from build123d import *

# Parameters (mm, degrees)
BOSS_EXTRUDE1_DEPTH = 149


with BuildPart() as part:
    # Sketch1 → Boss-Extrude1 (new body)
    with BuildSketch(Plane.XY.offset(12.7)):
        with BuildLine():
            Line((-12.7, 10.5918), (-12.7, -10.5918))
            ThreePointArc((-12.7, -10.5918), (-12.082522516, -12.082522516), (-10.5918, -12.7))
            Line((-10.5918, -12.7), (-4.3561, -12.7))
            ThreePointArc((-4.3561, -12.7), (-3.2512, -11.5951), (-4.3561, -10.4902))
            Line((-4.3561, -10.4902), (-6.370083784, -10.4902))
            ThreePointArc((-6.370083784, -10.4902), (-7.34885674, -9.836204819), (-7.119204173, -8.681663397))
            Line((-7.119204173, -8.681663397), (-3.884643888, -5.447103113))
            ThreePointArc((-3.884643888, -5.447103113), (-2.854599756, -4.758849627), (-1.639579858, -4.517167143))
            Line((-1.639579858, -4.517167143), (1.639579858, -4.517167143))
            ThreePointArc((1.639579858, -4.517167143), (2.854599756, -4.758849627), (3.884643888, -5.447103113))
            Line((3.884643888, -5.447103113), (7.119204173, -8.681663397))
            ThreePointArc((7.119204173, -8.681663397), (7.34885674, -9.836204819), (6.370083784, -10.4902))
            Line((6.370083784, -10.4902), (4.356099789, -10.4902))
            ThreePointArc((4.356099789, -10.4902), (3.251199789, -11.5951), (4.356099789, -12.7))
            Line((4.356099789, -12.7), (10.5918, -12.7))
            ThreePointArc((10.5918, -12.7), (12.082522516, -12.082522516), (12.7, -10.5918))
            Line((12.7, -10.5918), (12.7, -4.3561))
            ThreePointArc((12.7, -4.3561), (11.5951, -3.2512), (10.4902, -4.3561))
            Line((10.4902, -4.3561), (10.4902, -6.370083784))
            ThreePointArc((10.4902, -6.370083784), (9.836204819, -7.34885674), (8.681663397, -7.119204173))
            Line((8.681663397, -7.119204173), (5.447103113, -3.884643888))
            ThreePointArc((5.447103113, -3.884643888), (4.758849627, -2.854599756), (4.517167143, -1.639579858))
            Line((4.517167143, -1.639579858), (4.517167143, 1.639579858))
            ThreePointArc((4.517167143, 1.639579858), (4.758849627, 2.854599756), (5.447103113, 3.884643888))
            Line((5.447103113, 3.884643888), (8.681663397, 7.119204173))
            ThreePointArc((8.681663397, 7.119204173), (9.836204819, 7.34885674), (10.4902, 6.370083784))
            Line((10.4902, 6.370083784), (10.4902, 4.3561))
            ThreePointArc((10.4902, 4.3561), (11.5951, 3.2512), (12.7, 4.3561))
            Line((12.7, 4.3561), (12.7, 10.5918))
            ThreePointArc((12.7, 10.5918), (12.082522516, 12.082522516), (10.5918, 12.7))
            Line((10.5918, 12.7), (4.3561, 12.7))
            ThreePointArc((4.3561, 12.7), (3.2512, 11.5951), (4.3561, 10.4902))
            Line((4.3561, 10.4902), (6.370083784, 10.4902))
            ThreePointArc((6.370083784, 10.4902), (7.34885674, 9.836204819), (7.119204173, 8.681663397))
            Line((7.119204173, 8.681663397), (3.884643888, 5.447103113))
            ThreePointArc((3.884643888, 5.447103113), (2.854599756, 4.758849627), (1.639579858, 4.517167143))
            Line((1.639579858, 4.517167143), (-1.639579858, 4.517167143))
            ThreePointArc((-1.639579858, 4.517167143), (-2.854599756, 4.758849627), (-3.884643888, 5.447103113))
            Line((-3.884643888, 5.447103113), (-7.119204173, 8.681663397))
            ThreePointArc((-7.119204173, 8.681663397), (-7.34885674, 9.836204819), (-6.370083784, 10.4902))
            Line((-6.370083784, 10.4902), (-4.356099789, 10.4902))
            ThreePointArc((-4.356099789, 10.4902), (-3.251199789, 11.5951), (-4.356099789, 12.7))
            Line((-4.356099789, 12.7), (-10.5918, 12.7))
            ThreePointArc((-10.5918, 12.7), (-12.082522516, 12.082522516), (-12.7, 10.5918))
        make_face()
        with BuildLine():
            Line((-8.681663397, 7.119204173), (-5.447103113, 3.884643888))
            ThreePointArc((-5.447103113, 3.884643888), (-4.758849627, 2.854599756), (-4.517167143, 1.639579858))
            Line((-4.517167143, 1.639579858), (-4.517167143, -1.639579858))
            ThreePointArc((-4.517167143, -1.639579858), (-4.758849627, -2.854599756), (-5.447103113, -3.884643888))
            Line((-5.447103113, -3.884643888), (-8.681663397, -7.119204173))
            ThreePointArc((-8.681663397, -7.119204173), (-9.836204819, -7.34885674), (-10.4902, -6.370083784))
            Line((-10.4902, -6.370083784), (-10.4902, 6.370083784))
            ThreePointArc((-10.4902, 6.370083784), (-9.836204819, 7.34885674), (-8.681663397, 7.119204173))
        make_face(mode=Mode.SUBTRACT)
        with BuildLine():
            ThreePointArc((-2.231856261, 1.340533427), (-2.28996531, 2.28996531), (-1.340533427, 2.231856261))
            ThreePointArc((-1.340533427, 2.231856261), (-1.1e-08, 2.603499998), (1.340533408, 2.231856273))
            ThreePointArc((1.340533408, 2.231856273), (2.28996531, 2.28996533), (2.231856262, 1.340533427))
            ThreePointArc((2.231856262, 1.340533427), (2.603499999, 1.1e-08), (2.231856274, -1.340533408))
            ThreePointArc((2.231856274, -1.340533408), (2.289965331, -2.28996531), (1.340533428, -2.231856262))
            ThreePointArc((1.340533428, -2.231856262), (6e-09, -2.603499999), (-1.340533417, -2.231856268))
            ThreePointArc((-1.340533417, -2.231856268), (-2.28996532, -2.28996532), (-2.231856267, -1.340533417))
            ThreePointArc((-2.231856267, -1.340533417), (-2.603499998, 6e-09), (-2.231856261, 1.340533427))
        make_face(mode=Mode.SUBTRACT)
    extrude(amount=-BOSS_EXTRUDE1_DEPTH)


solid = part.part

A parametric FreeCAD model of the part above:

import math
import FreeCAD as App
import Part
import Sketcher
Q = App.Units.Quantity

doc = App.newDocument("Part")
body = doc.addObject("PartDesign::Body", "Body")

sketch1 = doc.addObject("Sketcher::SketchObject", "Sketch")
body.addObject(sketch1)
sketch1.AttachmentSupport = (doc.XY_Plane, [""])
sketch1.MapMode = "FlatFace"
sketch1.AttachmentOffset = App.Placement(App.Vector(0, 0, 0.5 * 25.4), App.Rotation())
sketch1.addGeometry([
    Part.LineSegment(App.Vector(-12.7, 10.6, 0), App.Vector(-12.7, -10.6, 0)),
    Part.ArcOfCircle(Part.Circle(App.Vector(-10.6, -10.6, 0), App.Vector(0, 0, 1), 2.1), math.radians(180), math.radians(270)),
    Part.LineSegment(App.Vector(-10.6, -12.7, 0), App.Vector(-4.4, -12.7, 0)),
    Part.ArcOfCircle(Part.Circle(App.Vector(-4.4, -11.6, 0), App.Vector(0, 0, 1), 1.1), math.radians(-90), math.radians(90)),
    Part.LineSegment(App.Vector(-4.4, -10.5, 0), App.Vector(-6.4, -10.5, 0)),
    Part.ArcOfCircle(Part.Circle(App.Vector(-6.4, -9.4, 0), App.Vector(0, 0, 1), 1.1), math.radians(135), math.radians(270)),
    Part.LineSegment(App.Vector(-7.1, -8.7, 0), App.Vector(-3.9, -5.4, 0)),
    Part.ArcOfCircle(Part.Circle(App.Vector(-1.6, -7.7, 0), App.Vector(0, 0, 1), 3.2), math.radians(90), math.radians(135)),
    Part.LineSegment(App.Vector(-1.6, -4.5, 0), App.Vector(1.6, -4.5, 0)),
    Part.ArcOfCircle(Part.Circle(App.Vector(1.6, -7.7, 0), App.Vector(0, 0, 1), 3.2), math.radians(45), math.radians(90)),
    Part.LineSegment(App.Vector(3.9, -5.4, 0), App.Vector(7.1, -8.7, 0)),
    Part.ArcOfCircle(Part.Circle(App.Vector(6.4, -9.4, 0), App.Vector(0, 0, 1), 1.1), math.radians(-90), math.radians(45)),
    Part.LineSegment(App.Vector(6.4, -10.5, 0), App.Vector(4.4, -10.5, 0)),
    Part.ArcOfCircle(Part.Circle(App.Vector(4.4, -11.6, 0), App.Vector(0, 0, 1), 1.1), math.radians(90), math.radians(270)),
    Part.LineSegment(App.Vector(4.4, -12.7, 0), App.Vector(10.6, -12.7, 0)),
    Part.ArcOfCircle(Part.Circle(App.Vector(10.6, -10.6, 0), App.Vector(0, 0, 1), 2.1), math.radians(-90), math.radians(0)),
    Part.LineSegment(App.Vector(12.7, -10.6, 0), App.Vector(12.7, -4.4, 0)),
    Part.ArcOfCircle(Part.Circle(App.Vector(11.6, -4.4, 0), App.Vector(0, 0, 1), 1.1), math.radians(0), math.radians(180)),
    Part.LineSegment(App.Vector(10.5, -4.4, 0), App.Vector(10.5, -6.4, 0)),
    Part.ArcOfCircle(Part.Circle(App.Vector(9.4, -6.4, 0), App.Vector(0, 0, 1), 1.1), math.radians(-135), math.radians(0)),
    Part.LineSegment(App.Vector(8.7, -7.1, 0), App.Vector(5.4, -3.9, 0)),
    Part.ArcOfCircle(Part.Circle(App.Vector(7.7, -1.6, 0), App.Vector(0, 0, 1), 3.2), math.radians(180), math.radians(225)),
    Part.LineSegment(App.Vector(4.5, -1.6, 0), App.Vector(4.5, 1.6, 0)),
    Part.ArcOfCircle(Part.Circle(App.Vector(7.7, 1.6, 0), App.Vector(0, 0, 1), 3.2), math.radians(135), math.radians(180)),
    Part.LineSegment(App.Vector(5.4, 3.9, 0), App.Vector(8.7, 7.1, 0)),
    Part.ArcOfCircle(Part.Circle(App.Vector(9.4, 6.4, 0), App.Vector(0, 0, 1), 1.1), math.radians(0), math.radians(135)),
    Part.LineSegment(App.Vector(10.5, 6.4, 0), App.Vector(10.5, 4.4, 0)),
    Part.ArcOfCircle(Part.Circle(App.Vector(11.6, 4.4, 0), App.Vector(0, 0, 1), 1.1), math.radians(180), math.radians(360)),
    Part.LineSegment(App.Vector(12.7, 4.4, 0), App.Vector(12.7, 10.6, 0)),
    Part.ArcOfCircle(Part.Circle(App.Vector(10.6, 10.6, 0), App.Vector(0, 0, 1), 2.1), math.radians(0), math.radians(90)),
    Part.LineSegment(App.Vector(10.6, 12.7, 0), App.Vector(4.4, 12.7, 0)),
    Part.ArcOfCircle(Part.Circle(App.Vector(4.4, 11.6, 0), App.Vector(0, 0, 1), 1.1), math.radians(90), math.radians(270)),
    Part.LineSegment(App.Vector(4.4, 10.5, 0), App.Vector(6.4, 10.5, 0)),
    Part.ArcOfCircle(Part.Circle(App.Vector(6.4, 9.4, 0), App.Vector(0, 0, 1), 1.1), math.radians(-45), math.radians(90)),
    Part.LineSegment(App.Vector(7.1, 8.7, 0), App.Vector(3.9, 5.4, 0)),
    Part.ArcOfCircle(Part.Circle(App.Vector(1.6, 7.7, 0), App.Vector(0, 0, 1), 3.2), math.radians(-90), math.radians(-45)),
    Part.LineSegment(App.Vector(1.6, 4.5, 0), App.Vector(-1.6, 4.5, 0)),
    Part.ArcOfCircle(Part.Circle(App.Vector(-1.6, 7.7, 0), App.Vector(0, 0, 1), 3.2), math.radians(-135), math.radians(-90)),
    Part.LineSegment(App.Vector(-3.9, 5.4, 0), App.Vector(-7.1, 8.7, 0)),
    Part.ArcOfCircle(Part.Circle(App.Vector(-6.4, 9.4, 0), App.Vector(0, 0, 1), 1.1), math.radians(90), math.radians(225)),
    Part.LineSegment(App.Vector(-6.4, 10.5, 0), App.Vector(-4.4, 10.5, 0)),
    Part.ArcOfCircle(Part.Circle(App.Vector(-4.4, 11.6, 0), App.Vector(0, 0, 1), 1.1), math.radians(-90), math.radians(90)),
    Part.LineSegment(App.Vector(-4.4, 12.7, 0), App.Vector(-10.6, 12.7, 0)),
    Part.ArcOfCircle(Part.Circle(App.Vector(-10.6, 10.6, 0), App.Vector(0, 0, 1), 2.1), math.radians(90), math.radians(180)),
    Part.ArcOfCircle(Part.Circle(App.Vector(0, 0, 0), App.Vector(0, 0, 1), 2.6), math.radians(149), math.radians(211)),
    Part.ArcOfCircle(Part.Circle(App.Vector(-1.8, 1.8, 0), App.Vector(0, 0, 1), 0.6), math.radians(38), math.radians(232)),
    Part.ArcOfCircle(Part.Circle(App.Vector(0, 0, 0), App.Vector(0, 0, 1), 2.6), math.radians(59), math.radians(121)),
    Part.ArcOfCircle(Part.Circle(App.Vector(1.8, 1.8, 0), App.Vector(0, 0, 1), 0.6), math.radians(-52), math.radians(142)),
    Part.ArcOfCircle(Part.Circle(App.Vector(0, 0, 0), App.Vector(0, 0, 1), 2.6), math.radians(-31), math.radians(31)),
    Part.ArcOfCircle(Part.Circle(App.Vector(1.8, -1.8, 0), App.Vector(0, 0, 1), 0.6), math.radians(-142), math.radians(52)),
    Part.ArcOfCircle(Part.Circle(App.Vector(0, 0, 0), App.Vector(0, 0, 1), 2.6), math.radians(-121), math.radians(-59)),
    Part.ArcOfCircle(Part.Circle(App.Vector(-1.8, -1.8, 0), App.Vector(0, 0, 1), 0.6), math.radians(128), math.radians(322)),
    Part.ArcOfCircle(Part.Circle(App.Vector(-9.4, 6.4, 0), App.Vector(0, 0, 1), 1.1), math.radians(45), math.radians(180)),
    Part.LineSegment(App.Vector(-8.7, 7.1, 0), App.Vector(-5.4, 3.9, 0)),
    Part.ArcOfCircle(Part.Circle(App.Vector(-7.7, 1.6, 0), App.Vector(0, 0, 1), 3.2), math.radians(0), math.radians(45)),
    Part.LineSegment(App.Vector(-4.5, 1.6, 0), App.Vector(-4.5, -1.6, 0)),
    Part.ArcOfCircle(Part.Circle(App.Vector(-7.7, -1.6, 0), App.Vector(0, 0, 1), 3.2), math.radians(-45), math.radians(0)),
    Part.LineSegment(App.Vector(-5.4, -3.9, 0), App.Vector(-8.7, -7.1, 0)),
    Part.ArcOfCircle(Part.Circle(App.Vector(-9.4, -6.4, 0), App.Vector(0, 0, 1), 1.1), math.radians(-180), math.radians(-45)),
    Part.LineSegment(App.Vector(-10.5, -6.4, 0), App.Vector(-10.5, 6.4, 0)),
], False)
sketch1.addConstraint([
    Sketcher.Constraint("Tangent", 0, 2, 1, 1),
    Sketcher.Constraint("Tangent", 1, 2, 2, 1),
    Sketcher.Constraint("Tangent", 2, 2, 3, 1),
    Sketcher.Constraint("Tangent", 3, 2, 4, 1),
    Sketcher.Constraint("Tangent", 4, 2, 5, 2),
    Sketcher.Constraint("Tangent", 5, 1, 6, 1),
    Sketcher.Constraint("Tangent", 6, 2, 7, 2),
    Sketcher.Constraint("Tangent", 7, 1, 8, 1),
    Sketcher.Constraint("Tangent", 8, 2, 9, 2),
    Sketcher.Constraint("Tangent", 9, 1, 10, 1),
    Sketcher.Constraint("Tangent", 10, 2, 11, 2),
    Sketcher.Constraint("Tangent", 11, 1, 12, 1),
    Sketcher.Constraint("Tangent", 12, 2, 13, 1),
    Sketcher.Constraint("Tangent", 13, 2, 14, 1),
    Sketcher.Constraint("Tangent", 14, 2, 15, 1),
    Sketcher.Constraint("Tangent", 15, 2, 16, 1),
    Sketcher.Constraint("Tangent", 16, 2, 17, 1),
    Sketcher.Constraint("Tangent", 17, 2, 18, 1),
    Sketcher.Constraint("Tangent", 18, 2, 19, 2),
    Sketcher.Constraint("Tangent", 19, 1, 20, 1),
    Sketcher.Constraint("Tangent", 20, 2, 21, 2),
    Sketcher.Constraint("Tangent", 21, 1, 22, 1),
    Sketcher.Constraint("Tangent", 22, 2, 23, 2),
    Sketcher.Constraint("Tangent", 23, 1, 24, 1),
    Sketcher.Constraint("Tangent", 24, 2, 25, 2),
    Sketcher.Constraint("Tangent", 25, 1, 26, 1),
    Sketcher.Constraint("Tangent", 26, 2, 27, 1),
    Sketcher.Constraint("Tangent", 27, 2, 28, 1),
    Sketcher.Constraint("Tangent", 28, 2, 29, 1),
    Sketcher.Constraint("Tangent", 29, 2, 30, 1),
    Sketcher.Constraint("Tangent", 30, 2, 31, 1),
    Sketcher.Constraint("Tangent", 31, 2, 32, 1),
    Sketcher.Constraint("Tangent", 32, 2, 33, 2),
    Sketcher.Constraint("Tangent", 33, 1, 34, 1),
    Sketcher.Constraint("Tangent", 34, 2, 35, 2),
    Sketcher.Constraint("Tangent", 35, 1, 36, 1),
    Sketcher.Constraint("Tangent", 36, 2, 37, 2),
    Sketcher.Constraint("Tangent", 37, 1, 38, 1),
    Sketcher.Constraint("Tangent", 38, 2, 39, 2),
    Sketcher.Constraint("Tangent", 39, 1, 40, 1),
    Sketcher.Constraint("Tangent", 40, 2, 41, 1),
    Sketcher.Constraint("Tangent", 41, 2, 42, 1),
    Sketcher.Constraint("Tangent", 42, 2, 43, 1),
    Sketcher.Constraint("Tangent", 43, 2, 0, 1),
    Sketcher.Constraint("Coincident", 44, 1, 45, 2),
    Sketcher.Constraint("Coincident", 45, 1, 46, 2),
    Sketcher.Constraint("Coincident", 46, 1, 47, 2),
    Sketcher.Constraint("Coincident", 47, 1, 48, 2),
    Sketcher.Constraint("Coincident", 48, 1, 49, 2),
    Sketcher.Constraint("Coincident", 49, 1, 50, 2),
    Sketcher.Constraint("Coincident", 50, 1, 51, 2),
    Sketcher.Constraint("Coincident", 51, 1, 44, 2),
    Sketcher.Constraint("Tangent", 52, 1, 53, 1),
    Sketcher.Constraint("Tangent", 53, 2, 54, 2),
    Sketcher.Constraint("Tangent", 54, 1, 55, 1),
    Sketcher.Constraint("Tangent", 55, 2, 56, 2),
    Sketcher.Constraint("Tangent", 56, 1, 57, 1),
    Sketcher.Constraint("Tangent", 57, 2, 58, 2),
    Sketcher.Constraint("Tangent", 58, 1, 59, 1),
    Sketcher.Constraint("Tangent", 59, 2, 52, 2),
    Sketcher.Constraint("Vertical", 0),
    Sketcher.Constraint("Horizontal", 2),
    Sketcher.Constraint("Horizontal", 4),
    Sketcher.Constraint("Horizontal", 8),
    Sketcher.Constraint("Horizontal", 12),
    Sketcher.Constraint("Horizontal", 14),
    Sketcher.Constraint("Vertical", 16),
    Sketcher.Constraint("Vertical", 18),
    Sketcher.Constraint("Vertical", 22),
    Sketcher.Constraint("Vertical", 26),
    Sketcher.Constraint("Vertical", 28),
    Sketcher.Constraint("Horizontal", 30),
    Sketcher.Constraint("Horizontal", 32),
    Sketcher.Constraint("Horizontal", 36),
    Sketcher.Constraint("Horizontal", 40),
    Sketcher.Constraint("Horizontal", 42),
    Sketcher.Constraint("Vertical", 55),
    Sketcher.Constraint("Vertical", 59),
    Sketcher.Constraint("Coincident", 44, 3, -1, 1),
    Sketcher.Constraint("Coincident", 46, 3, -1, 1),
    Sketcher.Constraint("Coincident", 48, 3, -1, 1),
    Sketcher.Constraint("Coincident", 50, 3, -1, 1),
    Sketcher.Constraint("Equal", 7, 9),
    Sketcher.Constraint("Equal", 5, 11),
    Sketcher.Constraint("Equal", 3, 13),
    Sketcher.Constraint("Equal", 1, 15),
    Sketcher.Constraint("Equal", 13, 17),
    Sketcher.Constraint("Equal", 11, 19),
    Sketcher.Constraint("Equal", 9, 21),
    Sketcher.Constraint("Equal", 21, 23),
    Sketcher.Constraint("Equal", 19, 25),
    Sketcher.Constraint("Equal", 17, 27),
    Sketcher.Constraint("Equal", 15, 29),
    Sketcher.Constraint("Equal", 27, 31),
    Sketcher.Constraint("Equal", 25, 33),
    Sketcher.Constraint("Equal", 23, 35),
    Sketcher.Constraint("Equal", 35, 37),
    Sketcher.Constraint("Equal", 33, 39),
    Sketcher.Constraint("Equal", 31, 41),
    Sketcher.Constraint("Equal", 29, 43),
    Sketcher.Constraint("Equal", 44, 46),
    Sketcher.Constraint("Equal", 45, 47),
    Sketcher.Constraint("Equal", 46, 48),
    Sketcher.Constraint("Equal", 47, 49),
    Sketcher.Constraint("Equal", 48, 50),
    Sketcher.Constraint("Equal", 49, 51),
    Sketcher.Constraint("Equal", 39, 52),
    Sketcher.Constraint("Equal", 37, 54),
    Sketcher.Constraint("Equal", 54, 56),
    Sketcher.Constraint("Equal", 52, 58),
    Sketcher.Constraint("Symmetric", 1, 3, 29, 3, -1, 1),
    Sketcher.Constraint("Symmetric", 7, 3, 35, 3, -1, 1),
    Sketcher.Constraint("Symmetric", 11, 3, 39, 3, -1, 1),
    Sketcher.Constraint("Symmetric", 45, 3, 49, 3, -1, 1),
    Sketcher.Constraint("Symmetric", 47, 3, 51, 3, -1, 1),
    Sketcher.Constraint("Symmetric", 19, 3, 52, 3, -1, 1),
    Sketcher.Constraint("Symmetric", 21, 3, 54, 3, -1, 1),
    Sketcher.Constraint("Symmetric", 25, 3, 58, 3, -1, 1),
    Sketcher.Constraint("Symmetric", 5, 3, 11, 3, -2),
    Sketcher.Constraint("Symmetric", 45, 3, 47, 3, -2),
    Sketcher.Constraint("Symmetric", 34, 2, 37, 1, -2),
    Sketcher.Constraint("Symmetric", 24, 2, 52, 1, -2),
    Sketcher.Constraint("Perpendicular", 6, 10),
    Sketcher.Constraint("Parallel", 10, 20),
    Sketcher.Constraint("Perpendicular", 20, 24),
    Sketcher.Constraint("Perpendicular", 53, 57),
    Sketcher.Constraint("Vertical", 13, 3, 31, 3),
    Sketcher.Constraint("Vertical", 3, 3, 41, 3),
    Sketcher.Constraint("Equal", 4, 12),
    Sketcher.Constraint("Equal", 42, 16),
    Sketcher.Constraint("Equal", 40, 18),
    Sketcher.Constraint("Equal", 36, 22),
    Sketcher.Constraint("Equal", 18, 26),
    Sketcher.Constraint("Equal", 10, 20),
    Sketcher.Constraint("Radius", 1, Q("0.083 in")),
    Sketcher.Constraint("Radius", 7, Q("0.125 in")),
    Sketcher.Constraint("Radius", 45, Q("0.025 in")),
    Sketcher.Constraint("DistanceX", 0, 2, -1, 1, Q("0.5 in")),
    Sketcher.Constraint("Radius", 3, Q("0.0435 in")),
    Sketcher.Constraint("Radius", 44, Q("0.1025 in")),
    Sketcher.Constraint("DistanceX", 2, 1, 2, 2, Q("0.2455 in")),
    Sketcher.Constraint("Radius", 5, Q("1.059416 mm")),
    Sketcher.Constraint("DistanceX", 8, 1, 8, 2, Q("3.27916 mm")),
    Sketcher.Constraint("Distance", 6, Q("4.574359 mm")),
    Sketcher.Constraint("DistanceX", 45, 3, -1, 1, Q("1.840953 mm")),
    Sketcher.Constraint("DistanceY", -1, 1, 45, 3, Q("1.840953 mm")),
])
pad1 = doc.addObject("PartDesign::Pad", "Pad")
body.addObject(pad1)
pad1.Profile = sketch1
pad1.Length = 149
pad1.Reversed = True

doc.recompute()
